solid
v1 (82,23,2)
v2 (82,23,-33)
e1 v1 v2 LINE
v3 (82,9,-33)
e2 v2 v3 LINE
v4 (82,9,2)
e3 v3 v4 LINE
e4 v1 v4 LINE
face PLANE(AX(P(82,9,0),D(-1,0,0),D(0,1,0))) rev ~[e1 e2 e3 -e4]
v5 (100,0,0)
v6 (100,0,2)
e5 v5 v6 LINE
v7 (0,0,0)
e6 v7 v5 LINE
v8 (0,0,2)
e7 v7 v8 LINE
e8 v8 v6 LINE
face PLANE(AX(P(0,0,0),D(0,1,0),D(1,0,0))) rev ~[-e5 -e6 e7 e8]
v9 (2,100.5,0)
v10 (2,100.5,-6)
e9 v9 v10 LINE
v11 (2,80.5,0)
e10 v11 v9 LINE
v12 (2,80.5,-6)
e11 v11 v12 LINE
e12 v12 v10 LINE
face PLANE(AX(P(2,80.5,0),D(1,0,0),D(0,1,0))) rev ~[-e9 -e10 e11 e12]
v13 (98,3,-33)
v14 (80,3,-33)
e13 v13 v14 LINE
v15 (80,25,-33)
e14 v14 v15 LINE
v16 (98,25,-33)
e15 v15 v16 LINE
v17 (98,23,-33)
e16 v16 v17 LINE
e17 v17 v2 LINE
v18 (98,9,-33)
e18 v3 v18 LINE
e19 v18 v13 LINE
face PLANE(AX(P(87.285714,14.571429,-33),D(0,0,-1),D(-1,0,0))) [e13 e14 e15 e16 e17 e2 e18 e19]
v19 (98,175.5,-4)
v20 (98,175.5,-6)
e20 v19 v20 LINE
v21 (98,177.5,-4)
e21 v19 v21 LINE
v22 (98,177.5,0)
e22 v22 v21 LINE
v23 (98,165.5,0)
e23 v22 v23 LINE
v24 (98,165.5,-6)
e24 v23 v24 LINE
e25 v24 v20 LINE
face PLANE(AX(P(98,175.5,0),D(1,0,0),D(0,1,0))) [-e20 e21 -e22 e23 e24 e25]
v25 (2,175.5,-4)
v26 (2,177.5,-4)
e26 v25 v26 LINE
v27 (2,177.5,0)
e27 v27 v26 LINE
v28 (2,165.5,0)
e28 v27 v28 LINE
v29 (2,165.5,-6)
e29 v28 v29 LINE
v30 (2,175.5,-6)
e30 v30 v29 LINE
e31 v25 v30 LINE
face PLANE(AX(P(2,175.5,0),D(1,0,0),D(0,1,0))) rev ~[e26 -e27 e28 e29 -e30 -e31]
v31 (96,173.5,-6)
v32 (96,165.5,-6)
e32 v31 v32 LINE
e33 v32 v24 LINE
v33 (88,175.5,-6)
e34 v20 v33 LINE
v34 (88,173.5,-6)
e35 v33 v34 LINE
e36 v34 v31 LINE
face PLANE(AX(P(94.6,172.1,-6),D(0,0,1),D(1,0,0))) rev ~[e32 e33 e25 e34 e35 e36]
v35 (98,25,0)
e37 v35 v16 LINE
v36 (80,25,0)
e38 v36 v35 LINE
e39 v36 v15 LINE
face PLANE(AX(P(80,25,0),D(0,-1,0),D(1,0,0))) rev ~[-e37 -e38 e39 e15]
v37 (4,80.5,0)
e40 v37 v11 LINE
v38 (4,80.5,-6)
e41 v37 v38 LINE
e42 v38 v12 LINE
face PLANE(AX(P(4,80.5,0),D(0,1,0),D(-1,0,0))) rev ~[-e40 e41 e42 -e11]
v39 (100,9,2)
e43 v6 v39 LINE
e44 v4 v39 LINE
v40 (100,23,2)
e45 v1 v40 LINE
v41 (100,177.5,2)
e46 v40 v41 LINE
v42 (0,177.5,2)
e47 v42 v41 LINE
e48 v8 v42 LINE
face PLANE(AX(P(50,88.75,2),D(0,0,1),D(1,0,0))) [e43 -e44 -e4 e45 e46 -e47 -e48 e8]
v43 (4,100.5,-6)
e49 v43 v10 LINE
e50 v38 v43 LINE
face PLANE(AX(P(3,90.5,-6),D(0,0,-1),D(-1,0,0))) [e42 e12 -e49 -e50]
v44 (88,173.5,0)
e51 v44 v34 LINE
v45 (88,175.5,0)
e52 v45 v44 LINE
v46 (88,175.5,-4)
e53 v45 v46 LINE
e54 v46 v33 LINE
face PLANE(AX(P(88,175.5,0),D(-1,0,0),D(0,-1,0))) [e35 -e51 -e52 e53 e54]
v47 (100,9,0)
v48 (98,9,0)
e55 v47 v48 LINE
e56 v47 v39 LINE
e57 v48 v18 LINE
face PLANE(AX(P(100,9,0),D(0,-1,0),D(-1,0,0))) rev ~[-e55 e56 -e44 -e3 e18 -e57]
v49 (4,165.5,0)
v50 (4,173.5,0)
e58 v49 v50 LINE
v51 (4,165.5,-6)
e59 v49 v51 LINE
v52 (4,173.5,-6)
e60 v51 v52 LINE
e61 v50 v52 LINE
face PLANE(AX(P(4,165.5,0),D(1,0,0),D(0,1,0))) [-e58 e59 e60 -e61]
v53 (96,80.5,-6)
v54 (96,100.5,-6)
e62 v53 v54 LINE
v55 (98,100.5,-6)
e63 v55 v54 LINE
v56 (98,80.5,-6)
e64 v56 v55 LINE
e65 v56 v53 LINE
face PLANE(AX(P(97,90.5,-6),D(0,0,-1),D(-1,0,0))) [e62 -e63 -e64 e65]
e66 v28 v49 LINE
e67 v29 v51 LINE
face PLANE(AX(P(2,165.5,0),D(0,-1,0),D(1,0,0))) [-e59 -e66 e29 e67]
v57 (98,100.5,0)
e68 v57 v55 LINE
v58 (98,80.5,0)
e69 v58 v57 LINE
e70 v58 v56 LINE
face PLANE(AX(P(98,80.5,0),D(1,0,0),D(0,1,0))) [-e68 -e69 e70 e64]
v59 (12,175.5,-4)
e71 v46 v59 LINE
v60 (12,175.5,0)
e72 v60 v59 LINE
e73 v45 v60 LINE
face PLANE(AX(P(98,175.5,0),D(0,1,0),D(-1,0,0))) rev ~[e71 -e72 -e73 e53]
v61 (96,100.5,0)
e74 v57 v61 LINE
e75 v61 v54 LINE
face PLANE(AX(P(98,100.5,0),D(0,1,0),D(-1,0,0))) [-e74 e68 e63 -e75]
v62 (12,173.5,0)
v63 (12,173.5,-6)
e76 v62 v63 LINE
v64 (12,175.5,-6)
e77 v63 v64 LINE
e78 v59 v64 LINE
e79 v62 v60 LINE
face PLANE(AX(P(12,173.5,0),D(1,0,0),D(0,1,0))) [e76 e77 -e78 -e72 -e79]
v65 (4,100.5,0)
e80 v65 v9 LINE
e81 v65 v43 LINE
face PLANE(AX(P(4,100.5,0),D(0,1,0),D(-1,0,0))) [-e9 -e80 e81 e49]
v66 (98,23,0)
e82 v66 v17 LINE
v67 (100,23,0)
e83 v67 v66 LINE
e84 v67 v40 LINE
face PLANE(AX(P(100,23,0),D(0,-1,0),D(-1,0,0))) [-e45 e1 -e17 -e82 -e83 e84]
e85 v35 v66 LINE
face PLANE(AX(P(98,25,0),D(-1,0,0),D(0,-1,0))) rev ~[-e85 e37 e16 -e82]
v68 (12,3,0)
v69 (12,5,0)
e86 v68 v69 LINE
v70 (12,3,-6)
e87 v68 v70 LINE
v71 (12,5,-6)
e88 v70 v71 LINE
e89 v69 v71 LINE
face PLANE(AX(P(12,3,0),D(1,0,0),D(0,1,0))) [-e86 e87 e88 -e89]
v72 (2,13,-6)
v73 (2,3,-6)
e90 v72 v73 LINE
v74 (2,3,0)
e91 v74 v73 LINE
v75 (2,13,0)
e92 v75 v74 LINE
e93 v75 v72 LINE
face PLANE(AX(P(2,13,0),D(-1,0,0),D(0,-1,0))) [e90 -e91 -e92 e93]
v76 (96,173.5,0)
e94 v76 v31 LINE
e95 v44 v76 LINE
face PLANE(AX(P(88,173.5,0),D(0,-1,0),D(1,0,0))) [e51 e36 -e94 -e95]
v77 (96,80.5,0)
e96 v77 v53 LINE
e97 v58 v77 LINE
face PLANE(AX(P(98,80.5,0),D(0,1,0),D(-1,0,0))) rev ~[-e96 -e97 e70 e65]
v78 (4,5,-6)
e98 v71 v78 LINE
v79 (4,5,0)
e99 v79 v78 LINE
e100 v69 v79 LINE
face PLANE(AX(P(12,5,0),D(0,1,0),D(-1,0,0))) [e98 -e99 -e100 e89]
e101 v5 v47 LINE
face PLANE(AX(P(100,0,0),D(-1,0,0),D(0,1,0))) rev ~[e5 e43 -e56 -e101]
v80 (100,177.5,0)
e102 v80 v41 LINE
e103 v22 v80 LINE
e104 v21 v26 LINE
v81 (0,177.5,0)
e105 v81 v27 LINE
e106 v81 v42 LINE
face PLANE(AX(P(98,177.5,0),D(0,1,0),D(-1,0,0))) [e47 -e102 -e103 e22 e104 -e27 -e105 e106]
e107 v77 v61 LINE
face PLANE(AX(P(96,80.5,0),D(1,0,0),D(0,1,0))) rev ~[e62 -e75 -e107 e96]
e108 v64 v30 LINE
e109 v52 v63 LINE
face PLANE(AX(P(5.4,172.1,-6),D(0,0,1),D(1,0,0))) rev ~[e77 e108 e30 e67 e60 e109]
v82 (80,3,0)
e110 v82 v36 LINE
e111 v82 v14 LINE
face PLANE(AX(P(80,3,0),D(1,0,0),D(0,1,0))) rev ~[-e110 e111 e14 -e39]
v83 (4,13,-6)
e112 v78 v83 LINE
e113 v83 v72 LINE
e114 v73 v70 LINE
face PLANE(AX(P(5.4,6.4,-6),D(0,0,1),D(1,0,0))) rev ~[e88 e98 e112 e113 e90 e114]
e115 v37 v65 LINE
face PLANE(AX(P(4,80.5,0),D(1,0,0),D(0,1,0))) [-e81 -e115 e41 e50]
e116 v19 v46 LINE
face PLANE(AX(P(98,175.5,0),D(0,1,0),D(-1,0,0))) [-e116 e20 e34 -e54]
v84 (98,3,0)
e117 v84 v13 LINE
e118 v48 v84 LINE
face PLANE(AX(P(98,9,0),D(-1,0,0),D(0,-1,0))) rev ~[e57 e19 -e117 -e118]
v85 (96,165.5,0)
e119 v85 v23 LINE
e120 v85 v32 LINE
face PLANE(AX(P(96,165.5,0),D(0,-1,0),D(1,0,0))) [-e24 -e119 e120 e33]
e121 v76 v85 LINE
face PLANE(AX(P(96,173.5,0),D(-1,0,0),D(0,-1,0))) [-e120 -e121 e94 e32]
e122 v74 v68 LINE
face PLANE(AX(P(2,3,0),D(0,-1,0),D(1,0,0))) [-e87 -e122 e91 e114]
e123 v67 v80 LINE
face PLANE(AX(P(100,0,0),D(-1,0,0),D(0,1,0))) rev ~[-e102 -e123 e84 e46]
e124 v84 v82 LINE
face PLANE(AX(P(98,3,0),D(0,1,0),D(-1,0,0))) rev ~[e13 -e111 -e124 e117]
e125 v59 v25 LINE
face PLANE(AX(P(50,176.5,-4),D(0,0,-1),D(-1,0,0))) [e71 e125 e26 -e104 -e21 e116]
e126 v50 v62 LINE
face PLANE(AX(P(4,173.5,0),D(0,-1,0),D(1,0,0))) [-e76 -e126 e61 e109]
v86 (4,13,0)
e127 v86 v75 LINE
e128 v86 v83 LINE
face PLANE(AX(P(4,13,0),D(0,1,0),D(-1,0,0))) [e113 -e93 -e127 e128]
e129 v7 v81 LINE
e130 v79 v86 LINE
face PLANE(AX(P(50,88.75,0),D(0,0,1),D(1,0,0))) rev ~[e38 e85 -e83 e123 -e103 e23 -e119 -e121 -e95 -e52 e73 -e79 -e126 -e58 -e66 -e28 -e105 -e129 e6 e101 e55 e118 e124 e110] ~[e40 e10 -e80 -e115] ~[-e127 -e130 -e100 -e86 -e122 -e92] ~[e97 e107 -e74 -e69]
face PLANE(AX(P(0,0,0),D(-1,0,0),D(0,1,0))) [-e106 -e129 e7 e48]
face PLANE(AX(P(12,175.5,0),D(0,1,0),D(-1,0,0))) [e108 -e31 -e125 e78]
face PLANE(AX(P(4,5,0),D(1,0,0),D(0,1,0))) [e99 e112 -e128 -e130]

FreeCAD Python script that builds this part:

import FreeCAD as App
import Part
import Sketcher
from FreeCAD import Vector
Q = App.Units.Quantity


def add_polygon(sketch, points):
    """Adds a closed chain of lines whose ends are joined by coincident constraints."""
    first, n = sketch.GeometryCount, len(points)
    for a, b in zip(points, points[1:] + points[:1]):
        sketch.addGeometry(Part.LineSegment(App.Vector(*a, 0), App.Vector(*b, 0)), False)
    for i in range(n):
        sketch.addConstraint(Sketcher.Constraint("Coincident", first + i, 2, first + (i + 1) % n, 1))

doc = App.newDocument("Part")
body = doc.addObject("PartDesign::Body", "Body")

# Sketch on XY plane
sketch1 = body.newObject("Sketcher::SketchObject", "Sketch")
sketch1.AttachmentSupport = (doc.getObject("XY_Plane"), [""])
sketch1.MapMode = "FlatFace"
add_polygon(sketch1, [(0, 177.5), (0, 0), (100, 0), (100, 177.5)])  # lines 0-3
sketch1.addConstraint(Sketcher.Constraint("Vertical", 0))
sketch1.addConstraint(Sketcher.Constraint("Horizontal", 1))
sketch1.addConstraint(Sketcher.Constraint("Vertical", 2))
sketch1.addConstraint(Sketcher.Constraint("Horizontal", 3))
sketch1.addConstraint(Sketcher.Constraint("Coincident", 0, 2, -1, 1))
sketch1.addConstraint(Sketcher.Constraint("DistanceX", 1, 1, 1, 2, Q("100 mm")))
sketch1.addConstraint(Sketcher.Constraint("DistanceY", 0, 2, 0, 1, Q("177.5 mm")))
pad1 = body.newObject("PartDesign::Pad", "Pad")
pad1.Profile = sketch1
pad1.Length = 2

# Sketch on XY plane
sketch2 = body.newObject("Sketcher::SketchObject", "Sketch001")
sketch2.AttachmentSupport = (doc.getObject("XY_Plane"), [""])
sketch2.MapMode = "FlatFace"
add_polygon(sketch2, [(88, 175.5), (98, 175.5), (98, 165.5), (96, 165.5), (96, 173.5), (88, 173.5)])  # lines 0-5
add_polygon(sketch2, [(2, 175.5), (12, 175.5), (12, 173.5), (4, 173.5), (4, 165.5), (2, 165.5)])  # lines 6-11
add_polygon(sketch2, [(12, 3), (2, 3), (2, 13), (4, 13), (4, 5), (12, 5)])  # lines 12-17
add_polygon(sketch2, [(98, 100.5), (98, 80.5), (96, 80.5), (96, 100.5)])  # lines 18-21
add_polygon(sketch2, [(4, 100.5), (4, 80.5), (2, 80.5), (2, 100.5)])  # lines 22-25
sketch2.addConstraint(Sketcher.Constraint("Horizontal", 0))
sketch2.addConstraint(Sketcher.Constraint("Vertical", 1))
sketch2.addConstraint(Sketcher.Constraint("Horizontal", 2))
sketch2.addConstraint(Sketcher.Constraint("Vertical", 3))
sketch2.addConstraint(Sketcher.Constraint("Horizontal", 4))
sketch2.addConstraint(Sketcher.Constraint("Vertical", 5))
sketch2.addConstraint(Sketcher.Constraint("Horizontal", 6))
sketch2.addConstraint(Sketcher.Constraint("Vertical", 7))
sketch2.addConstraint(Sketcher.Constraint("Horizontal", 8))
sketch2.addConstraint(Sketcher.Constraint("Vertical", 9))
sketch2.addConstraint(Sketcher.Constraint("Horizontal", 10))
sketch2.addConstraint(Sketcher.Constraint("Vertical", 11))
sketch2.addConstraint(Sketcher.Constraint("Horizontal", 12))
sketch2.addConstraint(Sketcher.Constraint("Vertical", 13))
sketch2.addConstraint(Sketcher.Constraint("Horizontal", 14))
sketch2.addConstraint(Sketcher.Constraint("Vertical", 15))
sketch2.addConstraint(Sketcher.Constraint("Horizontal", 16))
sketch2.addConstraint(Sketcher.Constraint("Vertical", 17))
sketch2.addConstraint(Sketcher.Constraint("Vertical", 18))
sketch2.addConstraint(Sketcher.Constraint("Horizontal", 19))
sketch2.addConstraint(Sketcher.Constraint("Vertical", 20))
sketch2.addConstraint(Sketcher.Constraint("Horizontal", 21))
sketch2.addConstraint(Sketcher.Constraint("Vertical", 22))
sketch2.addConstraint(Sketcher.Constraint("Horizontal", 23))
sketch2.addConstraint(Sketcher.Constraint("Vertical", 24))
sketch2.addConstraint(Sketcher.Constraint("Horizontal", 25))
sketch2.addConstraint(Sketcher.Constraint("Horizontal", 5, 2, 6, 2))
sketch2.addConstraint(Sketcher.Constraint("Horizontal", 4, 2, 7, 2))
sketch2.addConstraint(Sketcher.Constraint("Horizontal", 2, 2, 9, 2))
sketch2.addConstraint(Sketcher.Constraint("Horizontal", 19, 2, 22, 2))
sketch2.addConstraint(Sketcher.Constraint("Horizontal", 21, 2, 24, 2))
sketch2.addConstraint(Sketcher.Constraint("Vertical", 11, 2, 12, 2))
sketch2.addConstraint(Sketcher.Constraint("Vertical", 9, 2, 14, 2))
sketch2.addConstraint(Sketcher.Constraint("Vertical", 7, 2, 16, 2))
sketch2.addConstraint(Sketcher.Constraint("Vertical", 1, 2, 18, 2))
sketch2.addConstraint(Sketcher.Constraint("Vertical", 3, 2, 19, 2))
sketch2.addConstraint(Sketcher.Constraint("Vertical", 15, 2, 22, 2))
sketch2.addConstraint(Sketcher.Constraint("Vertical", 13, 2, 23, 2))
sketch2.addConstraint(Sketcher.Constraint("Equal", 0, 6))
sketch2.addConstraint(Sketcher.Constraint("Equal", 4, 8))
sketch2.addConstraint(Sketcher.Constraint("Equal", 12, 1))
sketch2.addConstraint(Sketcher.Constraint("Equal", 16, 3))
sketch2.addConstraint(Sketcher.Constraint("Equal", 11, 13))
sketch2.addConstraint(Sketcher.Constraint("Equal", 9, 15))
sketch2.addConstraint(Sketcher.Constraint("DistanceX", 0, 1, 0, 2, Q("10 mm")))
sketch2.addConstraint(Sketcher.Constraint("DistanceX", 2, 2, 2, 1, Q("2 mm")))
sketch2.addConstraint(Sketcher.Constraint("DistanceY", 18, 2, 18, 1, Q("20 mm")))
sketch2.addConstraint(Sketcher.Constraint("DistanceX", -1, 1, 0, 2, Q("98 mm")))
sketch2.addConstraint(Sketcher.Constraint("DistanceX", -1, 1, 6, 2, Q("12 mm")))
sketch2.addConstraint(Sketcher.Constraint("DistanceY", -1, 1, 12, 2, Q("3 mm")))
sketch2.addConstraint(Sketcher.Constraint("DistanceY", 18, 2, 1, 2, Q("85 mm")))
sketch2.addConstraint(Sketcher.Constraint("DistanceY", -1, 1, 0, 2, Q("175.5 mm")))
pad2 = body.newObject("PartDesign::Pad", "Pad001")
pad2.Profile = sketch2
pad2.Length = 6
pad2.Reversed = True

# Sketch on XY plane
sketch3 = body.newObject("Sketcher::SketchObject", "Sketch002")
sketch3.AttachmentSupport = (doc.getObject("XY_Plane"), [""])
sketch3.MapMode = "FlatFace"
add_polygon(sketch3, [(98, 177.5), (98, 175.5), (2, 175.5), (2, 177.5)])  # lines 0-3
sketch3.addConstraint(Sketcher.Constraint("Vertical", 0))
sketch3.addConstraint(Sketcher.Constraint("Horizontal", 1))
sketch3.addConstraint(Sketcher.Constraint("Vertical", 2))
sketch3.addConstraint(Sketcher.Constraint("Horizontal", 3))
sketch3.addConstraint(Sketcher.Constraint("DistanceX", 1, 2, 1, 1, Q("96 mm")))
sketch3.addConstraint(Sketcher.Constraint("DistanceY", 0, 2, 0, 1, Q("2 mm")))
sketch3.addConstraint(Sketcher.Constraint("DistanceX", -1, 1, 0, 2, Q("98 mm")))
sketch3.addConstraint(Sketcher.Constraint("DistanceY", -1, 1, 0, 2, Q("175.5 mm")))
pad3 = body.newObject("PartDesign::Pad", "Pad002")
pad3.Profile = sketch3
pad3.Length = 4
pad3.Reversed = True

# Sketch on XY plane
sketch4 = body.newObject("Sketcher::SketchObject", "Sketch003")
sketch4.AttachmentSupport = (doc.getObject("XY_Plane"), [""])
sketch4.MapMode = "FlatFace"
add_polygon(sketch4, [(98, 3), (80, 3), (80, 25), (98, 25), (98, 23), (82, 23), (82, 9), (98, 9)])  # lines 0-7
sketch4.addConstraint(Sketcher.Constraint("Horizontal", 0))
sketch4.addConstraint(Sketcher.Constraint("Vertical", 1))
sketch4.addConstraint(Sketcher.Constraint("Horizontal", 2))
sketch4.addConstraint(Sketcher.Constraint("Vertical", 3))
sketch4.addConstraint(Sketcher.Constraint("Horizontal", 4))
sketch4.addConstraint(Sketcher.Constraint("Vertical", 5))
sketch4.addConstraint(Sketcher.Constraint("Horizontal", 6))
sketch4.addConstraint(Sketcher.Constraint("Vertical", 7))
sketch4.addConstraint(Sketcher.Constraint("Vertical", 3, 2, 6, 2))
sketch4.addConstraint(Sketcher.Constraint("DistanceX", 0, 2, 0, 1, Q("18 mm")))
sketch4.addConstraint(Sketcher.Constraint("DistanceX", 4, 2, 4, 1, Q("16 mm")))
sketch4.addConstraint(Sketcher.Constraint("DistanceY", 1, 1, 1, 2, Q("22 mm")))
sketch4.addConstraint(Sketcher.Constraint("DistanceY", 3, 2, 3, 1, Q("2 mm")))
sketch4.addConstraint(Sketcher.Constraint("DistanceY", 5, 2, 5, 1, Q("14 mm")))
sketch4.addConstraint(Sketcher.Constraint("DistanceX", -1, 1, 0, 2, Q("80 mm")))
sketch4.addConstraint(Sketcher.Constraint("DistanceY", -1, 1, 0, 2, Q("3 mm")))
pad4 = body.newObject("PartDesign::Pad", "Pad003")
pad4.Profile = sketch4
pad4.Length = 33
pad4.Reversed = True

# Sketch on XY plane
sketch5 = body.newObject("Sketcher::SketchObject", "Sketch004")
sketch5.AttachmentSupport = (doc.getObject("XY_Plane"), [""])
sketch5.MapMode = "FlatFace"
add_polygon(sketch5, [(100, 23), (100, 9), (82, 9), (82, 23)])  # lines 0-3
sketch5.addConstraint(Sketcher.Constraint("Vertical", 0))
sketch5.addConstraint(Sketcher.Constraint("Horizontal", 1))
sketch5.addConstraint(Sketcher.Constraint("Vertical", 2))
sketch5.addConstraint(Sketcher.Constraint("Horizontal", 3))
sketch5.addConstraint(Sketcher.Constraint("DistanceX", 1, 2, 1, 1, Q("18 mm")))
sketch5.addConstraint(Sketcher.Constraint("DistanceY", 0, 2, 0, 1, Q("14 mm")))
sketch5.addConstraint(Sketcher.Constraint("DistanceX", -1, 1, 0, 2, Q("100 mm")))
sketch5.addConstraint(Sketcher.Constraint("DistanceY", -1, 1, 0, 2, Q("9 mm")))
pocket1 = body.newObject("PartDesign::Pocket", "Pocket")
pocket1.Profile = sketch5
pocket1.Type = "ThroughAll"
pocket1.Reversed = True

doc.recompute()
